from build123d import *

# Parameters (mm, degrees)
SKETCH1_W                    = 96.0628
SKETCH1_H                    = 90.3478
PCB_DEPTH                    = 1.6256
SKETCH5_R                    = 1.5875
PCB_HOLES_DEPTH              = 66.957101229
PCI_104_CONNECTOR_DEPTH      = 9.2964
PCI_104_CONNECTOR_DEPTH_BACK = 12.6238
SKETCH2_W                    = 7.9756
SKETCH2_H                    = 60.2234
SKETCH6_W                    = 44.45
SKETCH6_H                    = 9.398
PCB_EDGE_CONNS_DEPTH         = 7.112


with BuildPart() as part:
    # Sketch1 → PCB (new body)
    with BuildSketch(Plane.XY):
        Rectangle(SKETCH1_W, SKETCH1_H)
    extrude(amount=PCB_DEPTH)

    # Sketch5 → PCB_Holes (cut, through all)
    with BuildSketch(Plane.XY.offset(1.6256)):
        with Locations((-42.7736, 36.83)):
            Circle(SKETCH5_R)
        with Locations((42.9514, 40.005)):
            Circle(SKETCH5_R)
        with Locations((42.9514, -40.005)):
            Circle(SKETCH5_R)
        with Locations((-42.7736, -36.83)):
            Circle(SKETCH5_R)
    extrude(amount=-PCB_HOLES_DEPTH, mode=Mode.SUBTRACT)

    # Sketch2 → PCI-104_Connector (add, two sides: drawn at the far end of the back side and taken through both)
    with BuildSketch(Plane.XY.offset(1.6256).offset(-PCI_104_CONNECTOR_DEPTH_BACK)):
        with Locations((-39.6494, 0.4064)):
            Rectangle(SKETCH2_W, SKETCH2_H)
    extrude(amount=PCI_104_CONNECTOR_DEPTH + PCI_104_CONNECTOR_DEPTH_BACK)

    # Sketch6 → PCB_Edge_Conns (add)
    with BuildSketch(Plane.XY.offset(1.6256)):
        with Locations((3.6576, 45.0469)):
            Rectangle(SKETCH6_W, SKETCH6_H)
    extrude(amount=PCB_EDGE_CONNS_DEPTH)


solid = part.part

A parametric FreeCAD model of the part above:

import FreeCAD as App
import Part
import Sketcher
Q = App.Units.Quantity

doc = App.newDocument("Part")
body = doc.addObject("PartDesign::Body", "Body")

sketch1 = body.newObject("Sketcher::SketchObject", "Sketch")
sketch1.AttachmentSupport = (doc.getObject("XY_Plane"), [""])
sketch1.MapMode = "FlatFace"
sketch1.addGeometry([
    Part.LineSegment(App.Vector(-48, 45, 0), App.Vector(-48, -45, 0)),
    Part.LineSegment(App.Vector(-48, -45, 0), App.Vector(48, -45, 0)),
    Part.LineSegment(App.Vector(48, -45, 0), App.Vector(48, 45, 0)),
    Part.LineSegment(App.Vector(48, 45, 0), App.Vector(-48, 45, 0)),
], False)
sketch1.addConstraint([
    Sketcher.Constraint("Coincident", 0, 2, 1, 1),
    Sketcher.Constraint("Coincident", 1, 2, 2, 1),
    Sketcher.Constraint("Coincident", 2, 2, 3, 1),
    Sketcher.Constraint("Coincident", 3, 2, 0, 1),
    Sketcher.Constraint("Vertical", 0),
    Sketcher.Constraint("Horizontal", 1),
    Sketcher.Constraint("Vertical", 2),
    Sketcher.Constraint("Horizontal", 3),
    Sketcher.Constraint("Symmetric", 0, 2, 2, 2, -1, 1),
    Sketcher.Constraint("DistanceX", 1, 1, 1, 2, Q("3.782 in")),
    Sketcher.Constraint("DistanceY", 0, 2, 0, 1, Q("3.557 in")),
])
pad1 = body.newObject("PartDesign::Pad", "Pad")
pad1.Profile = sketch1
pad1.Length = Q("0.064 in")

sketch2 = body.newObject("Sketcher::SketchObject", "Sketch001")
sketch2.AttachmentSupport = (doc.getObject("XY_Plane"), [""])
sketch2.MapMode = "FlatFace"
sketch2.AttachmentOffset = App.Placement(App.Vector(0, 0, 0.064 * 25.4), App.Rotation())
sketch2.addGeometry([
    Part.Circle(App.Vector(-42.8, 36.8, 0), App.Vector(0, 0, 1), 1.6),
    Part.Circle(App.Vector(43, 40, 0), App.Vector(0, 0, 1), 1.6),
    Part.Circle(App.Vector(43, -40, 0), App.Vector(0, 0, 1), 1.6),
    Part.Circle(App.Vector(-42.8, -36.8, 0), App.Vector(0, 0, 1), 1.6),
], False)
sketch2.addConstraint([
    Sketcher.Constraint("Equal", 0, 1),
    Sketcher.Constraint("Equal", 1, 2),
    Sketcher.Constraint("Equal", 2, 3),
    Sketcher.Constraint("Symmetric", 1, 3, 2, 3, -1),
    Sketcher.Constraint("Symmetric", 0, 3, 3, 3, -1),
    Sketcher.Constraint("Diameter", 0, Q("0.125 in")),
    Sketcher.Constraint("DistanceY", 3, 3, 0, 3, Q("2.9 in")),
    Sketcher.Constraint("DistanceY", 2, 3, 1, 3, Q("3.15 in")),
    Sketcher.Constraint("DistanceX", 0, 3, -1, 1, Q("1.684 in")),
    Sketcher.Constraint("DistanceX", -1, 1, 1, 3, Q("1.691 in")),
])
pocket1 = body.newObject("PartDesign::Pocket", "Pocket")
pocket1.Profile = sketch2
pocket1.Type = "ThroughAll"

sketch3 = body.newObject("Sketcher::SketchObject", "Sketch002")
sketch3.AttachmentSupport = (doc.getObject("XY_Plane"), [""])
sketch3.MapMode = "FlatFace"
sketch3.AttachmentOffset = App.Placement(App.Vector(0, 0, 0.064 * 25.4), App.Rotation())
sketch3.addGeometry([
    Part.LineSegment(App.Vector(-44, 31, 0), App.Vector(-44, -30, 0)),
    Part.LineSegment(App.Vector(-44, -30, 0), App.Vector(-36, -30, 0)),
    Part.LineSegment(App.Vector(-36, -30, 0), App.Vector(-36, 31, 0)),
    Part.LineSegment(App.Vector(-36, 31, 0), App.Vector(-44, 31, 0)),
], False)
sketch3.addConstraint([
    Sketcher.Constraint("Coincident", 0, 2, 1, 1),
    Sketcher.Constraint("Coincident", 1, 2, 2, 1),
    Sketcher.Constraint("Coincident", 2, 2, 3, 1),
    Sketcher.Constraint("Coincident", 3, 2, 0, 1),
    Sketcher.Constraint("Vertical", 0),
    Sketcher.Constraint("Horizontal", 1),
    Sketcher.Constraint("Vertical", 2),
    Sketcher.Constraint("Horizontal", 3),
    Sketcher.Constraint("DistanceX", 1, 1, 1, 2, Q("0.314 in")),
    Sketcher.Constraint("DistanceY", 0, 2, 0, 1, Q("2.371 in")),
    Sketcher.Constraint("DistanceX", 0, 2, -1, 1, Q("1.718 in")),
    Sketcher.Constraint("DistanceY", 0, 2, -1, 1, Q("1.1695 in")),
])
pad2 = body.newObject("PartDesign::Pad", "Pad001")
pad2.Profile = sketch3
pad2.Type = "TwoLengths"
pad2.Length = Q("0.366 in")
pad2.Length2 = Q("0.497 in")

sketch4 = body.newObject("Sketcher::SketchObject", "Sketch003")
sketch4.AttachmentSupport = (doc.getObject("XY_Plane"), [""])
sketch4.MapMode = "FlatFace"
sketch4.AttachmentOffset = App.Placement(App.Vector(0, 0, 0.064 * 25.4), App.Rotation())
sketch4.addGeometry([
    Part.LineSegment(App.Vector(-19, 50, 0), App.Vector(-19, 40, 0)),
    Part.LineSegment(App.Vector(-19, 40, 0), App.Vector(26, 40, 0)),
    Part.LineSegment(App.Vector(26, 40, 0), App.Vector(26, 50, 0)),
    Part.LineSegment(App.Vector(26, 50, 0), App.Vector(-19, 50, 0)),
], False)
sketch4.addConstraint([
    Sketcher.Constraint("Coincident", 0, 2, 1, 1),
    Sketcher.Constraint("Coincident", 1, 2, 2, 1),
    Sketcher.Constraint("Coincident", 2, 2, 3, 1),
    Sketcher.Constraint("Coincident", 3, 2, 0, 1),
    Sketcher.Constraint("Vertical", 0),
    Sketcher.Constraint("Horizontal", 1),
    Sketcher.Constraint("Vertical", 2),
    Sketcher.Constraint("Horizontal", 3),
    Sketcher.Constraint("DistanceX", 1, 1, 1, 2, Q("1.75 in")),
    Sketcher.Constraint("DistanceY", 0, 2, 0, 1, Q("0.37 in")),
    Sketcher.Constraint("DistanceX", 0, 2, -1, 1, Q("0.731 in")),
    Sketcher.Constraint("DistanceY", -1, 1, 0, 2, Q("1.5885 in")),
])
pad3 = body.newObject("PartDesign::Pad", "Pad002")
pad3.Profile = sketch4
pad3.Length = Q("0.28 in")

doc.recompute()
